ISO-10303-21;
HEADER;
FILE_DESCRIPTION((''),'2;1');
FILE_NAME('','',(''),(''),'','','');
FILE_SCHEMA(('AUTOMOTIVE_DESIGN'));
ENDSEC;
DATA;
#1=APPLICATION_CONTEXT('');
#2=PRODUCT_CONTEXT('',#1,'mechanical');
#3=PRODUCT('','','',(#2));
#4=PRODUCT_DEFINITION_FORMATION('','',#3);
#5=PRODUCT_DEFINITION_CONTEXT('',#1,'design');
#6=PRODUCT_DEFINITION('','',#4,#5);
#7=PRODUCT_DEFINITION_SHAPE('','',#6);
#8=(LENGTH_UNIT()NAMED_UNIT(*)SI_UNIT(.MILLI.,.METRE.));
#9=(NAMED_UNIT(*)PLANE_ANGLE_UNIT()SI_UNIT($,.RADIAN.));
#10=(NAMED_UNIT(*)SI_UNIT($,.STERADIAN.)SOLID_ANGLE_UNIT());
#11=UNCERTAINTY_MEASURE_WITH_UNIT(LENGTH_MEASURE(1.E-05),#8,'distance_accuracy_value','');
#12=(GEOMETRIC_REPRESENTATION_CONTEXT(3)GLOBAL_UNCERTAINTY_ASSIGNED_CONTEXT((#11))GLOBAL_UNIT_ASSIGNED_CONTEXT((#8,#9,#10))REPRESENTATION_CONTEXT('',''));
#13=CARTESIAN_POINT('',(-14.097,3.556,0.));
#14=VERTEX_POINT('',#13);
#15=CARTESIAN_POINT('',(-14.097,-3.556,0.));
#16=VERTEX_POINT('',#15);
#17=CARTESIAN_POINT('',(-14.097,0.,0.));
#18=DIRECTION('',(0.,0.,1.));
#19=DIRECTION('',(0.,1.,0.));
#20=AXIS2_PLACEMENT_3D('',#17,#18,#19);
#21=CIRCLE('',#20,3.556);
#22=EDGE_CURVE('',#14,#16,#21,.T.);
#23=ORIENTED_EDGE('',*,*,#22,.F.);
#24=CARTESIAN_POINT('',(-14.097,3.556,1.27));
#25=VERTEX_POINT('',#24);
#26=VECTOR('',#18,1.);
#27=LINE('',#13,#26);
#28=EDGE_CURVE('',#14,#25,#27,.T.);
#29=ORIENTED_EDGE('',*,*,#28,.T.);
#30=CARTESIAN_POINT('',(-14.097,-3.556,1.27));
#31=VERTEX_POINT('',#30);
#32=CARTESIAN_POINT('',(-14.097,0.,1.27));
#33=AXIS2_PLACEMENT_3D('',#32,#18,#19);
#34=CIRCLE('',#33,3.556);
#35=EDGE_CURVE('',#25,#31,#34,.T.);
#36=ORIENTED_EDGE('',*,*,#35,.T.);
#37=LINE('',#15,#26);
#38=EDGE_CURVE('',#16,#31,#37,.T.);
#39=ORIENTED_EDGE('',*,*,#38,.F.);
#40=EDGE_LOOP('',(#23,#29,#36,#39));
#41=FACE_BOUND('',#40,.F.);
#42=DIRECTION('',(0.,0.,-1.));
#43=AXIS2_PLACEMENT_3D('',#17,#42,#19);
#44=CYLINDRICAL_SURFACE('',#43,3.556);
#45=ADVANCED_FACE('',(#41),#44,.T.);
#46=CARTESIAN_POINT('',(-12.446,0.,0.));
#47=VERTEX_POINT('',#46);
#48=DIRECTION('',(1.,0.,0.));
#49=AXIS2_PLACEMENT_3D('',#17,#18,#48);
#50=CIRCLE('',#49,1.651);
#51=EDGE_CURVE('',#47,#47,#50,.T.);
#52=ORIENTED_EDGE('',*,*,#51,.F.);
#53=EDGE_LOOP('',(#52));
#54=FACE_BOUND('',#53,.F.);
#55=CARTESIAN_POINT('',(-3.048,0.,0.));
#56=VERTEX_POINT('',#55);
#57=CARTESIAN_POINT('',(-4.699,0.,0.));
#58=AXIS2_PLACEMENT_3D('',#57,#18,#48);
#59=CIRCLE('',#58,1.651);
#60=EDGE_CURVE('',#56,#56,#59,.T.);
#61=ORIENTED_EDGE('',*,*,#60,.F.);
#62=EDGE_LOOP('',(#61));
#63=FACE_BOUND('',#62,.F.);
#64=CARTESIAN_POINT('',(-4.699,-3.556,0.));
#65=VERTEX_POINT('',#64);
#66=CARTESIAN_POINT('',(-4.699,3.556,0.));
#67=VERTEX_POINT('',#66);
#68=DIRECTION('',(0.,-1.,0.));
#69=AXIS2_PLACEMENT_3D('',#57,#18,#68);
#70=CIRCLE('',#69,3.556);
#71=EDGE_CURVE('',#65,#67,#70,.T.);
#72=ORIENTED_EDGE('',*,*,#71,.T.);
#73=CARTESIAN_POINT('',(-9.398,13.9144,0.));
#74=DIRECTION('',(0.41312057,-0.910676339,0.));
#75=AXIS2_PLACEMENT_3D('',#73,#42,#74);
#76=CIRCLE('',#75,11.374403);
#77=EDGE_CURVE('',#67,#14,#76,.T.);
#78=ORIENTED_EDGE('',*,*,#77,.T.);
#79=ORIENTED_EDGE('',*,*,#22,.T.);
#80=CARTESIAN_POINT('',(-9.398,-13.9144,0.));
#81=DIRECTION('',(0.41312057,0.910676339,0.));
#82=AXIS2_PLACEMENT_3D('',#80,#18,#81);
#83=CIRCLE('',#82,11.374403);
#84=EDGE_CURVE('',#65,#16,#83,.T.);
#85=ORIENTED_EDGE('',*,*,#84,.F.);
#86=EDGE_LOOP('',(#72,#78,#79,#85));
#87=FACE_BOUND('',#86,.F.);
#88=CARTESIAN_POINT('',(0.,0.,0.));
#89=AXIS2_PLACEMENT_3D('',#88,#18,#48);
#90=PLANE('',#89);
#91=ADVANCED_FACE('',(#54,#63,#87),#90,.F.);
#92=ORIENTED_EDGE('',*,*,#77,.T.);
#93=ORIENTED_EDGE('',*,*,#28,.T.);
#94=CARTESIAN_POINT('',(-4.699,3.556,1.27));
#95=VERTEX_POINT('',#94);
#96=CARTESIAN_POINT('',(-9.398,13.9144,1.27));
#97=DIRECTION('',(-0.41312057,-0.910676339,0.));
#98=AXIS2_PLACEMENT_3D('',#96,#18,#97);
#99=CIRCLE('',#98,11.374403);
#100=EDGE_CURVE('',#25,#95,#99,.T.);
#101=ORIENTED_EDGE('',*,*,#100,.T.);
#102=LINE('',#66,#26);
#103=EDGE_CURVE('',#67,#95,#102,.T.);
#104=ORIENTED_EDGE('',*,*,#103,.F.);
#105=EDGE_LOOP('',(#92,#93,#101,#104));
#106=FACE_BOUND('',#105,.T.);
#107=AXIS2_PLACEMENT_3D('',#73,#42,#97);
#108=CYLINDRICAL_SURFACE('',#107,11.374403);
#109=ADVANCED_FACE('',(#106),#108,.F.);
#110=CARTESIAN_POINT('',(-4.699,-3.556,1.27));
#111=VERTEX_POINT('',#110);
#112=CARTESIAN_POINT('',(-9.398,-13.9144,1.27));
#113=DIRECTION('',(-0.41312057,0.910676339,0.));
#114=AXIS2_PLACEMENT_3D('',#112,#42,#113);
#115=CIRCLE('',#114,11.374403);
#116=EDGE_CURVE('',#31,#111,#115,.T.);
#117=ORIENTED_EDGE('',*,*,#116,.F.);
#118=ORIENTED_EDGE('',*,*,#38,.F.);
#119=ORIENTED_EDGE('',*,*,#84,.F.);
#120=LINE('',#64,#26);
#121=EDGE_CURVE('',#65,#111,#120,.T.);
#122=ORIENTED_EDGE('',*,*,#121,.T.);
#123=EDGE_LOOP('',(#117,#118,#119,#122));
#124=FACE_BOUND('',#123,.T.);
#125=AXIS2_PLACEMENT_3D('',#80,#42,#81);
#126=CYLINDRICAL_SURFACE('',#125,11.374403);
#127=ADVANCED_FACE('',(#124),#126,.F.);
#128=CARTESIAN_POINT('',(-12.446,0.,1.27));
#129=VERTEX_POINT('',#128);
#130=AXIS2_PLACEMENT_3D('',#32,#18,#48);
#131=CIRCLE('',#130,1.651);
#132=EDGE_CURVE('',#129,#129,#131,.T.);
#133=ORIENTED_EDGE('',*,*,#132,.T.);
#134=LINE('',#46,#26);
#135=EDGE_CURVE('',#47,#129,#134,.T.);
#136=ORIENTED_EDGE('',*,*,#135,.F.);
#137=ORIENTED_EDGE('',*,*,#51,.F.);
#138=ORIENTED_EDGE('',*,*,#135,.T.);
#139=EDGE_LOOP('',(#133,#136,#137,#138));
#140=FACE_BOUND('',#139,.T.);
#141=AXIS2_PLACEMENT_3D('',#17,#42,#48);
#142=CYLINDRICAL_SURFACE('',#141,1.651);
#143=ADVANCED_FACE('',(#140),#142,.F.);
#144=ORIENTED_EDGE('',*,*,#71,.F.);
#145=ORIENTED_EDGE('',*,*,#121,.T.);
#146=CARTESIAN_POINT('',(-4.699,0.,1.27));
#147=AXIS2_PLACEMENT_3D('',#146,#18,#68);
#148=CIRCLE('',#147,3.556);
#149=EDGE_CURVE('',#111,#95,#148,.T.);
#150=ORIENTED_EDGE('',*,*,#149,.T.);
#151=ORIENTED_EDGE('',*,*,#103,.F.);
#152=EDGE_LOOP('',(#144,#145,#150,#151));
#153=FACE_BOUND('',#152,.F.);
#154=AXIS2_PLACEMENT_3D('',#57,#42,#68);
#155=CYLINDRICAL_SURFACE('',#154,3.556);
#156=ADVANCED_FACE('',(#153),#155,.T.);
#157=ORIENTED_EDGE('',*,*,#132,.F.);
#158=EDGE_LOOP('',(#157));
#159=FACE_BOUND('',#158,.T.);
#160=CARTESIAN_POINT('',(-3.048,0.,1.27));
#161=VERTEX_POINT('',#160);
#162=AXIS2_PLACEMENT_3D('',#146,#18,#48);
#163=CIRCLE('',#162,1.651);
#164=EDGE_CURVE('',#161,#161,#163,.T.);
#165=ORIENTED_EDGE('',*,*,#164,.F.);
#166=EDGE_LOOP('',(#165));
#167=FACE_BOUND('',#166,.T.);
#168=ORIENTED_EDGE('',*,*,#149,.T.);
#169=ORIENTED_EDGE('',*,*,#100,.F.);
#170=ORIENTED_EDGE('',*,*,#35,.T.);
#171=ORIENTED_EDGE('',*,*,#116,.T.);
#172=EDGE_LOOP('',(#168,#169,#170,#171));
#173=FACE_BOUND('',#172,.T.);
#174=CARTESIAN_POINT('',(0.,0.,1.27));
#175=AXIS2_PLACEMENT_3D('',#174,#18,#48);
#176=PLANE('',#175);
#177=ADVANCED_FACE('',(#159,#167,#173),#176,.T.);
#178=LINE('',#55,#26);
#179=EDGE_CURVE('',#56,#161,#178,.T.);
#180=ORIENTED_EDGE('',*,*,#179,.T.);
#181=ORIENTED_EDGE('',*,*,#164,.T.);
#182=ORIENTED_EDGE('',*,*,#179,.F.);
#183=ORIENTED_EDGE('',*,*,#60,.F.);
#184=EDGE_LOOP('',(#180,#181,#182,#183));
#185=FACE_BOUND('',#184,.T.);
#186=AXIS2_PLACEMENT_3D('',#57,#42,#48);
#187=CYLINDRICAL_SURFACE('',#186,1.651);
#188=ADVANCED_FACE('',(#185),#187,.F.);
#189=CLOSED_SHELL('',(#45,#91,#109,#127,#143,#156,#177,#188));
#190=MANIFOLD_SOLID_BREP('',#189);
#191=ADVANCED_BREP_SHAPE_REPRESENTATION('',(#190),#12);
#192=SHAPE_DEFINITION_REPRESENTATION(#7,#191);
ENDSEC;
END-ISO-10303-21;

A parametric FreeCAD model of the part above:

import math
import FreeCAD as App
import Part
import Sketcher
Q = App.Units.Quantity

doc = App.newDocument("Part")
body = doc.addObject("PartDesign::Body", "Body")

# Sketch on XY plane
sketch1 = body.newObject("Sketcher::SketchObject", "Sketch")
sketch1.AttachmentSupport = (doc.getObject("XY_Plane"), [""])
sketch1.MapMode = "FlatFace"
sketch1.addGeometry([
    Part.ArcOfCircle(Part.Circle(App.Vector(-14.1, 0, 0), App.Vector(0, 0, 1), 3.6), math.radians(90), math.radians(270)),  # 0
    Part.ArcOfCircle(Part.Circle(App.Vector(-9.4, -13.9, 0), App.Vector(0, 0, 1), 11.4), math.radians(66), math.radians(114)),  # 1
    Part.ArcOfCircle(Part.Circle(App.Vector(-4.7, 0, 0), App.Vector(0, 0, 1), 3.6), math.radians(-90), math.radians(90)),  # 2
    Part.ArcOfCircle(Part.Circle(App.Vector(-9.4, 13.9, 0), App.Vector(0, 0, 1), 11.4), math.radians(-114), math.radians(-66)),  # 3
    Part.Circle(App.Vector(-14.1, 0, 0), App.Vector(0, 0, 1), 1.7),  # 4
    Part.Circle(App.Vector(-4.7, 0, 0), App.Vector(0, 0, 1), 1.7),  # 5
], False)
sketch1.addConstraint([
    Sketcher.Constraint("Coincident", 0, 2, 1, 2),
    Sketcher.Constraint("Coincident", 1, 1, 2, 1),
    Sketcher.Constraint("Coincident", 2, 2, 3, 2),
    Sketcher.Constraint("Coincident", 3, 1, 0, 1),
    Sketcher.Constraint("Coincident", 4, 3, 0, 3),
    Sketcher.Constraint("Coincident", 5, 3, 2, 3),
    Sketcher.Constraint("Equal", 0, 2),
    Sketcher.Constraint("Equal", 1, 3),
    Sketcher.Constraint("Equal", 4, 5),
    Sketcher.Constraint("Symmetric", 1, 3, 3, 3, -1),
    Sketcher.Constraint("PointOnObject", 0, 3, -1),
    Sketcher.Constraint("PointOnObject", 2, 3, -1),
    Sketcher.Constraint("Vertical", 4, 3, 0, 2),
    Sketcher.Constraint("Vertical", 5, 3, 1, 1),
    Sketcher.Constraint("Diameter", 4, Q("0.13 in")),
    Sketcher.Constraint("Radius", 0, Q("0.14 in")),
    Sketcher.Constraint("DistanceX", 1, 3, -1, 1, Q("0.37 in")),
    Sketcher.Constraint("DistanceX", 0, 3, 2, 3, Q("0.37 in")),
    Sketcher.Constraint("Radius", 1, Q("0.4478 in")),
])
pad1 = body.newObject("PartDesign::Pad", "Pad")
pad1.Profile = sketch1
pad1.Length = Q("0.05 in")

doc.recompute()
